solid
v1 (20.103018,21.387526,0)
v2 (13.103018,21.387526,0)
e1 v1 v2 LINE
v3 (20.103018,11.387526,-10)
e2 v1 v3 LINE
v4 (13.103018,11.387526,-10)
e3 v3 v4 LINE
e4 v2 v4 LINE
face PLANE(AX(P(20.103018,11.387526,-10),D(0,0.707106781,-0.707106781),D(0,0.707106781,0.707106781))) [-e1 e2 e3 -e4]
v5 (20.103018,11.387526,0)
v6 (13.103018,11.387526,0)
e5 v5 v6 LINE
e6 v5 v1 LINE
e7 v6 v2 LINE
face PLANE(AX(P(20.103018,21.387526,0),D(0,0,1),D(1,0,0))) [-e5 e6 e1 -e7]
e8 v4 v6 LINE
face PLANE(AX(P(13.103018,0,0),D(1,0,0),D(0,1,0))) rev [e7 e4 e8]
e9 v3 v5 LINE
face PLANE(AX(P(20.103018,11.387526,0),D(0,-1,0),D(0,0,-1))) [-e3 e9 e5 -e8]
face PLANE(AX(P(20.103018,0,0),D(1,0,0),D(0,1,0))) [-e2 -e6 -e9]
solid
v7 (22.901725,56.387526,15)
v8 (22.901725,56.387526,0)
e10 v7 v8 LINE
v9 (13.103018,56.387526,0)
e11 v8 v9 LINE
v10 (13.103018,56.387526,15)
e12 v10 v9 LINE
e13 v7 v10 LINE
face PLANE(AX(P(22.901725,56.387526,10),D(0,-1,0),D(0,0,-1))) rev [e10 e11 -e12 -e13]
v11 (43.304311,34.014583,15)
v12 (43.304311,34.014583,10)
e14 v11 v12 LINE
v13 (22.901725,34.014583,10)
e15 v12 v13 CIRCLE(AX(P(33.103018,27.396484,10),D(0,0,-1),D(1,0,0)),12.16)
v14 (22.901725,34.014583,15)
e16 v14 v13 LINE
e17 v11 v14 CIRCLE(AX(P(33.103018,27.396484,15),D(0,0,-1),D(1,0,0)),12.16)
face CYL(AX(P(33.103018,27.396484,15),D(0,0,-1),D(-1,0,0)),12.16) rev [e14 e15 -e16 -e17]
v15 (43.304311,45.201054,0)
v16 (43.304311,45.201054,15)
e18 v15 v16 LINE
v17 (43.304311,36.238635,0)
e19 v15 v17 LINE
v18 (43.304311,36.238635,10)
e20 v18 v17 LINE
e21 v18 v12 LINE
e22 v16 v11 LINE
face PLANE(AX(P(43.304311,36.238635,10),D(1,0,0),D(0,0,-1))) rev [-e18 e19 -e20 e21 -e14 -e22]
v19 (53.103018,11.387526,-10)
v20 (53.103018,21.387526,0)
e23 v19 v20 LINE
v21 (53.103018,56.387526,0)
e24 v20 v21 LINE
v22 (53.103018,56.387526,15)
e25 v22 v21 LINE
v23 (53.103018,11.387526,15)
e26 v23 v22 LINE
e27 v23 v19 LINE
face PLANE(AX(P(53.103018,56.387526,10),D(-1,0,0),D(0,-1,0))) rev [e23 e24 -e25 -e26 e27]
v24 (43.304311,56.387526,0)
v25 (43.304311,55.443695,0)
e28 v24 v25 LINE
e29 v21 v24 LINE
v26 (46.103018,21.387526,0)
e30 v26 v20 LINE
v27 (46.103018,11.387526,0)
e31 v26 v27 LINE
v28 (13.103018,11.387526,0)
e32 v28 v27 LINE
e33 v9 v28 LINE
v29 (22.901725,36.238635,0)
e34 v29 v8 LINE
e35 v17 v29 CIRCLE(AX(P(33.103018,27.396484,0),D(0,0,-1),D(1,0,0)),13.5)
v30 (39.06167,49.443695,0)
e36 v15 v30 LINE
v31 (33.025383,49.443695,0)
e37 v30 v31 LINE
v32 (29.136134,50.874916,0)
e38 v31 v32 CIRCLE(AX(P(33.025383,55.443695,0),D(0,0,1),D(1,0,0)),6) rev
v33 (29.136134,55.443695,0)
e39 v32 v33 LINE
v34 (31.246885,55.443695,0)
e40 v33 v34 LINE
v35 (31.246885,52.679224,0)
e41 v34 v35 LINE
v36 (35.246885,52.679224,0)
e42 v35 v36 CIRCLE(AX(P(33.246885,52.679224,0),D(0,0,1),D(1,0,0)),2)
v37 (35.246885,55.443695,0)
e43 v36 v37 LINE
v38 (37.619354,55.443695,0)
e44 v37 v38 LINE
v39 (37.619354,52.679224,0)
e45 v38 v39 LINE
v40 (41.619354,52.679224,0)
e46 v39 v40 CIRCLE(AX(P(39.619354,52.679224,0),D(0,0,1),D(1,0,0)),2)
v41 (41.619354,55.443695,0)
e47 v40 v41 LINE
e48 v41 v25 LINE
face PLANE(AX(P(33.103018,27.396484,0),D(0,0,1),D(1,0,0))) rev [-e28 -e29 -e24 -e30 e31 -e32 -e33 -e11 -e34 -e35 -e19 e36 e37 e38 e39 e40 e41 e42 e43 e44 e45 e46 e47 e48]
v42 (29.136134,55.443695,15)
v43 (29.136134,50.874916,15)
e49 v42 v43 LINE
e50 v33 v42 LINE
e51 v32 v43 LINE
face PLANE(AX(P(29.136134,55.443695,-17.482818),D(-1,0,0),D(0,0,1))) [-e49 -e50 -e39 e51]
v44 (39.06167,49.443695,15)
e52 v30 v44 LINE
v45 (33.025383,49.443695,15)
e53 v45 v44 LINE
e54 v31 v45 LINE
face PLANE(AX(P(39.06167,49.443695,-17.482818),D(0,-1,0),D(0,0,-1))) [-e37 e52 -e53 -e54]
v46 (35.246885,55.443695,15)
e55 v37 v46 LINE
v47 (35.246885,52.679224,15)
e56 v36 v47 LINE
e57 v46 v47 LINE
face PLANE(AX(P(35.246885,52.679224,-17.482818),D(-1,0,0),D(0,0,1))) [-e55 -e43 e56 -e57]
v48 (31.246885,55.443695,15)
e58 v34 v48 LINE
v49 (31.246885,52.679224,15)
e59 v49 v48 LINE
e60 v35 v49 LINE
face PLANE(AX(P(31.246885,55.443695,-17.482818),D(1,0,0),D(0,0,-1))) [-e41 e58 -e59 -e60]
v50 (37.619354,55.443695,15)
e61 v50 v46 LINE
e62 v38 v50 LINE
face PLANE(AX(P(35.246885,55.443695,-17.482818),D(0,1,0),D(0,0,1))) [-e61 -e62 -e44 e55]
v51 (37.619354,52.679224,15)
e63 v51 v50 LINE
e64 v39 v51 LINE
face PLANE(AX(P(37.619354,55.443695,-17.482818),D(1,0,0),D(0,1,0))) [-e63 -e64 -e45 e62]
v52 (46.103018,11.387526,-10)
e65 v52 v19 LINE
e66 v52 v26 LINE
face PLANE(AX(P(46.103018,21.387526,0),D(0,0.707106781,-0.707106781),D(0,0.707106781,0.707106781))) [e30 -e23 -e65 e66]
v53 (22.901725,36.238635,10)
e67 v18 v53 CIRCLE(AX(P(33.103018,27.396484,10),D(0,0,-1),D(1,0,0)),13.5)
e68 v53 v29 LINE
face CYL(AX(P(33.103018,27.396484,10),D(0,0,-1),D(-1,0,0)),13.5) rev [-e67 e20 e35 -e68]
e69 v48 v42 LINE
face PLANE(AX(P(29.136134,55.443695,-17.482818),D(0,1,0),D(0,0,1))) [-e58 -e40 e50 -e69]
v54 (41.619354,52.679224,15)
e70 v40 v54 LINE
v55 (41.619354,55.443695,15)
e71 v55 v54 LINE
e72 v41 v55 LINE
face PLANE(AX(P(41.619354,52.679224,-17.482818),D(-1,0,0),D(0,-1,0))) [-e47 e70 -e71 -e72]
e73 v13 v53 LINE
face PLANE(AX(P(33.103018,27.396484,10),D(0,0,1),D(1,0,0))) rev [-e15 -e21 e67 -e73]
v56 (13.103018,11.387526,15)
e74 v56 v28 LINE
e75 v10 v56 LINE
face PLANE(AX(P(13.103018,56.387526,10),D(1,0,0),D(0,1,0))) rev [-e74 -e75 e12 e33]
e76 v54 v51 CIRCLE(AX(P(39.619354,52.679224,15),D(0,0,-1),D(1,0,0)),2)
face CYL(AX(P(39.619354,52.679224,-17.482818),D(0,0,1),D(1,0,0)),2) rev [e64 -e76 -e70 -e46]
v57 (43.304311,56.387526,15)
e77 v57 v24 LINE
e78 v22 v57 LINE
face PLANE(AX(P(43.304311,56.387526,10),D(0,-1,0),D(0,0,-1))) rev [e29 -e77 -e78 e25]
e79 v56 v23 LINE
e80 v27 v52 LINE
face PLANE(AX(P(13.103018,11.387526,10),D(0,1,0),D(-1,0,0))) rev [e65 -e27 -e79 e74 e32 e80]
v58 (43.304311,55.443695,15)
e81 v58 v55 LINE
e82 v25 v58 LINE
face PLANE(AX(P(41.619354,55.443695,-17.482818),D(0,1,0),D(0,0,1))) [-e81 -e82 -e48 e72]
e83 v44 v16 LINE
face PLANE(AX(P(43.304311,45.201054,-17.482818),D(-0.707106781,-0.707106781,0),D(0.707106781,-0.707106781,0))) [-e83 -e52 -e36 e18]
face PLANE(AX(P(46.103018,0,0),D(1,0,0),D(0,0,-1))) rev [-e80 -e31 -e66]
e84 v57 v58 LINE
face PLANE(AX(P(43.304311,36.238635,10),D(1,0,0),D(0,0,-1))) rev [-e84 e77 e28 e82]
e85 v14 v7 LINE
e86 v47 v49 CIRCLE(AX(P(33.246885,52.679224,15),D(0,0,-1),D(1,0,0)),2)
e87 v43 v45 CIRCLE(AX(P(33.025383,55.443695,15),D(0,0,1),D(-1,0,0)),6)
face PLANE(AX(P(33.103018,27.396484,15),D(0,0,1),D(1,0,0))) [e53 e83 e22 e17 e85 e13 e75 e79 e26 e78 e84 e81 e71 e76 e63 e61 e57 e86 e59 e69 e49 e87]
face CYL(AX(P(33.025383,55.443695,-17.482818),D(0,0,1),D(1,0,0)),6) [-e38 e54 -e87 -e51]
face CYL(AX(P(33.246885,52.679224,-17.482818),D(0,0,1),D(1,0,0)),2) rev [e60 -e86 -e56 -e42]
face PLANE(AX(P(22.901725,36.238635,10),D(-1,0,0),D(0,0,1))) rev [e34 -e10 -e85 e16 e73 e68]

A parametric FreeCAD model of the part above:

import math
import FreeCAD as App
import Part
import Sketcher
from FreeCAD import Vector
Q = App.Units.Quantity


def add_polygon(sketch, points):
    """Adds a closed chain of lines whose ends are joined by coincident constraints."""
    first, n = sketch.GeometryCount, len(points)
    for a, b in zip(points, points[1:] + points[:1]):
        sketch.addGeometry(Part.LineSegment(App.Vector(*a, 0), App.Vector(*b, 0)), False)
    for i in range(n):
        sketch.addConstraint(Sketcher.Constraint("Coincident", first + i, 2, first + (i + 1) % n, 1))

doc = App.newDocument("Part")
body = doc.addObject("PartDesign::Body", "Body")

sketch1 = doc.addObject("Sketcher::SketchObject", "Sketch")
body.addObject(sketch1)
sketch1.AttachmentSupport = (doc.XY_Plane, [""])
sketch1.MapMode = "FlatFace"
sketch1.addGeometry([
    Part.LineSegment(Vector(13, 56, 0), Vector(13, 11, 0)),
    Part.LineSegment(Vector(13, 11, 0), Vector(53, 11, 0)),
    Part.LineSegment(Vector(53, 11, 0), Vector(53, 56, 0)),
    Part.LineSegment(Vector(53, 56, 0), Vector(43, 56, 0)),
    Part.LineSegment(Vector(43, 56, 0), Vector(43, 36, 0)),
    Part.ArcOfCircle(Part.Circle(Vector(33, 27, 0), Vector(0, 0, 1), 14), math.radians(139), math.radians(401)),
    Part.LineSegment(Vector(23, 36, 0), Vector(23, 56, 0)),
    Part.LineSegment(Vector(23, 56, 0), Vector(13, 56, 0)),
], False)
sketch1.addConstraint([
    Sketcher.Constraint("Coincident", 0, 2, 1, 1),
    Sketcher.Constraint("Coincident", 1, 2, 2, 1),
    Sketcher.Constraint("Coincident", 2, 2, 3, 1),
    Sketcher.Constraint("Coincident", 3, 2, 4, 1),
    Sketcher.Constraint("Coincident", 4, 2, 5, 2),
    Sketcher.Constraint("Coincident", 5, 1, 6, 1),
    Sketcher.Constraint("Coincident", 6, 2, 7, 1),
    Sketcher.Constraint("Coincident", 7, 2, 0, 1),
    Sketcher.Constraint("Vertical", 0),
    Sketcher.Constraint("Horizontal", 1),
    Sketcher.Constraint("Vertical", 2),
    Sketcher.Constraint("Horizontal", 3),
    Sketcher.Constraint("Vertical", 4),
    Sketcher.Constraint("Vertical", 6),
    Sketcher.Constraint("Horizontal", 7),
    Sketcher.Constraint("Horizontal", 4, 2, 5, 1),
    Sketcher.Constraint("Horizontal", 3, 2, 6, 2),
    Sketcher.Constraint("Equal", 3, 7),
    Sketcher.Constraint("Radius", 5, 13.5),
    Sketcher.Constraint("DistanceX", 1, 1, 1, 2, 40.0),
    Sketcher.Constraint("DistanceY", 0, 2, 0, 1, 45.0),
    Sketcher.Constraint("DistanceY", 4, 2, 4, 1, 20.148891),
    Sketcher.Constraint("DistanceX", 3, 2, 3, 1, 9.798707),
    Sketcher.Constraint("DistanceX", -1, 1, 3, 2, 43.304311),
    Sketcher.Constraint("DistanceY", -1, 1, 5, 3, 27.396484),
])
pad1 = doc.addObject("PartDesign::Pad", "Pad")
body.addObject(pad1)
pad1.Profile = sketch1
pad1.Length = 10

sketch2 = doc.addObject("Sketcher::SketchObject", "Sketch001")
body.addObject(sketch2)
sketch2.AttachmentSupport = (doc.XY_Plane, [""])
sketch2.MapMode = "FlatFace"
sketch2.AttachmentOffset = App.Placement(Vector(0, 0, 10), App.Rotation())
sketch2.addGeometry([
    Part.LineSegment(Vector(23, 56, 0), Vector(13, 56, 0)),
    Part.LineSegment(Vector(13, 56, 0), Vector(13, 11, 0)),
    Part.LineSegment(Vector(13, 11, 0), Vector(53, 11, 0)),
    Part.LineSegment(Vector(53, 11, 0), Vector(53, 56, 0)),
    Part.LineSegment(Vector(53, 56, 0), Vector(43, 56, 0)),
    Part.LineSegment(Vector(43, 56, 0), Vector(43, 34, 0)),
    Part.ArcOfCircle(Part.Circle(Vector(33, 27, 0), Vector(0, 0, 1), 12), math.radians(147), math.radians(393)),
    Part.LineSegment(Vector(23, 34, 0), Vector(23, 56, 0)),
], False)
sketch2.addConstraint([
    Sketcher.Constraint("Coincident", 0, 2, 1, 1),
    Sketcher.Constraint("Coincident", 1, 2, 2, 1),
    Sketcher.Constraint("Coincident", 2, 2, 3, 1),
    Sketcher.Constraint("Coincident", 3, 2, 4, 1),
    Sketcher.Constraint("Coincident", 4, 2, 5, 1),
    Sketcher.Constraint("Coincident", 5, 2, 6, 2),
    Sketcher.Constraint("Coincident", 6, 1, 7, 1),
    Sketcher.Constraint("Coincident", 7, 2, 0, 1),
    Sketcher.Constraint("Horizontal", 0),
    Sketcher.Constraint("Vertical", 1),
    Sketcher.Constraint("Horizontal", 2),
    Sketcher.Constraint("Vertical", 3),
    Sketcher.Constraint("Horizontal", 4),
    Sketcher.Constraint("Vertical", 5),
    Sketcher.Constraint("Vertical", 7),
    Sketcher.Constraint("Horizontal", 0, 2, 3, 2),
    Sketcher.Constraint("Horizontal", 5, 2, 6, 1),
    Sketcher.Constraint("Equal", 0, 4),
    Sketcher.Constraint("DistanceX", 2, 1, 2, 2, 40.0),
    Sketcher.Constraint("DistanceY", 1, 2, 1, 1, 45.0),
    Sketcher.Constraint("Radius", 6, 12.16),
    Sketcher.Constraint("DistanceY", 6, 3, 5, 2, 6.618098),
    Sketcher.Constraint("DistanceY", 5, 2, 5, 1, 22.372943),
    Sketcher.Constraint("DistanceX", -1, 1, 4, 2, 43.304311),
    Sketcher.Constraint("DistanceY", -1, 1, 6, 3, 27.396484),
])
pad2 = doc.addObject("PartDesign::Pad", "Pad001")
body.addObject(pad2)
pad2.Profile = sketch2
pad2.Length = 5

sketch3 = doc.addObject("Sketcher::SketchObject", "Sketch002")
body.addObject(sketch3)
sketch3.AttachmentSupport = (doc.YZ_Plane, [""])
sketch3.MapMode = "FlatFace"
sketch3.AttachmentOffset = App.Placement(Vector(0, 0, 53.103018), App.Rotation())
add_polygon(sketch3, [(11, -10), (21, 0), (11, 0)])
sketch3.addConstraint([
    Sketcher.Constraint("Horizontal", 1),
    Sketcher.Constraint("Vertical", 2),
    Sketcher.Constraint("PointOnObject", 0, 2, -1),
    Sketcher.Constraint("Equal", 1, 2),
    Sketcher.Constraint("DistanceX", 1, 2, 1, 1, 10.0),
    Sketcher.Constraint("DistanceX", -1, 1, 0, 2, 21.387526),
])
pad3 = doc.addObject("PartDesign::Pad", "Pad002")
body.addObject(pad3)
pad3.Profile = sketch3
pad3.Length = 7
pad3.Reversed = True

sketch4 = doc.addObject("Sketcher::SketchObject", "Sketch003")
body.addObject(sketch4)
sketch4.AttachmentSupport = (doc.XY_Plane, [""])
sketch4.MapMode = "FlatFace"
sketch4.AttachmentOffset = App.Placement(Vector(0, 0, 15), App.Rotation())
sketch4.addGeometry([
    Part.LineSegment(Vector(39.1, 49.4, 0), Vector(43.3, 45.2, 0)),
    Part.LineSegment(Vector(43.3, 45.2, 0), Vector(43.3, 55.4, 0)),
    Part.LineSegment(Vector(43.3, 55.4, 0), Vector(41.6, 55.4, 0)),
    Part.LineSegment(Vector(41.6, 55.4, 0), Vector(41.6, 52.7, 0)),
    Part.ArcOfCircle(Part.Circle(Vector(39.6, 52.7, 0), Vector(0, 0, 1), 2), math.radians(180), math.radians(360)),
    Part.LineSegment(Vector(37.6, 52.7, 0), Vector(37.6, 55.4, 0)),
    Part.LineSegment(Vector(37.6, 55.4, 0), Vector(35.2, 55.4, 0)),
    Part.LineSegment(Vector(35.2, 55.4, 0), Vector(35.2, 52.7, 0)),
    Part.ArcOfCircle(Part.Circle(Vector(33.2, 52.7, 0), Vector(0, 0, 1), 2), math.radians(180), math.radians(360)),
    Part.LineSegment(Vector(31.2, 52.7, 0), Vector(31.2, 55.4, 0)),
    Part.LineSegment(Vector(31.2, 55.4, 0), Vector(29.1, 55.4, 0)),
    Part.LineSegment(Vector(29.1, 55.4, 0), Vector(29.1, 50.9, 0)),
    Part.ArcOfCircle(Part.Circle(Vector(33, 55.4, 0), Vector(0, 0, 1), 6), math.radians(-130), math.radians(-90)),
    Part.LineSegment(Vector(33, 49.4, 0), Vector(39.1, 49.4, 0)),
], False)
sketch4.addConstraint([
    Sketcher.Constraint("Coincident", 0, 2, 1, 1),
    Sketcher.Constraint("Coincident", 1, 2, 2, 1),
    Sketcher.Constraint("Coincident", 2, 2, 3, 1),
    Sketcher.Constraint("Tangent", 3, 2, 4, 2),
    Sketcher.Constraint("Tangent", 4, 1, 5, 1),
    Sketcher.Constraint("Coincident", 5, 2, 6, 1),
    Sketcher.Constraint("Coincident", 6, 2, 7, 1),
    Sketcher.Constraint("Tangent", 7, 2, 8, 2),
    Sketcher.Constraint("Tangent", 8, 1, 9, 1),
    Sketcher.Constraint("Coincident", 9, 2, 10, 1),
    Sketcher.Constraint("Coincident", 10, 2, 11, 1),
    Sketcher.Constraint("Coincident", 11, 2, 12, 1),
    Sketcher.Constraint("Tangent", 12, 2, 13, 1),
    Sketcher.Constraint("Coincident", 13, 2, 0, 1),
    Sketcher.Constraint("Vertical", 1),
    Sketcher.Constraint("Horizontal", 2),
    Sketcher.Constraint("Vertical", 3),
    Sketcher.Constraint("Vertical", 5),
    Sketcher.Constraint("Horizontal", 6),
    Sketcher.Constraint("Vertical", 7),
    Sketcher.Constraint("Vertical", 9),
    Sketcher.Constraint("Horizontal", 10),
    Sketcher.Constraint("Vertical", 11),
    Sketcher.Constraint("Horizontal", 13),
    Sketcher.Constraint("Equal", 4, 8),
    Sketcher.Constraint("Horizontal", 4, 3, 8, 3),
    Sketcher.Constraint("Horizontal", 12, 3, 1, 2),
    Sketcher.Constraint("Horizontal", 2, 2, 5, 2),
    Sketcher.Constraint("Horizontal", 6, 2, 9, 2),
    Sketcher.Constraint("Radius", 4, 2.0),
    Sketcher.Constraint("Radius", 12, 6.0),
    Sketcher.Constraint("Angle", 0, Q("-45 deg")),
    Sketcher.Constraint("Distance", 0, 6.0),
    Sketcher.Constraint("DistanceX", 6, 2, 6, 1, 2.372469),
    Sketcher.Constraint("DistanceX", 10, 2, 10, 1, 2.110751),
    Sketcher.Constraint("DistanceY", 3, 2, 3, 1, 2.764471),
    Sketcher.Constraint("DistanceY", 11, 2, 11, 1, 4.568779),
    Sketcher.Constraint("DistanceX", 2, 2, 2, 1, 1.684956),
    Sketcher.Constraint("DistanceX", -1, 1, 0, 2, 43.304311),
    Sketcher.Constraint("DistanceY", -1, 1, 4, 3, 52.679224),
])
pad4 = doc.addObject("PartDesign::Pad", "Pad003")
body.addObject(pad4)
pad4.Profile = sketch4
pad4.Length = 15
pad4.Reversed = True
body2 = doc.addObject("PartDesign::Body", "Body001")

sketch5 = doc.addObject("Sketcher::SketchObject", "Sketch004")
body2.addObject(sketch5)
sketch5.AttachmentSupport = (doc.getObject("YZ_Plane001"), [""])
sketch5.MapMode = "FlatFace"
sketch5.AttachmentOffset = App.Placement(Vector(0, 0, 13.103018), App.Rotation())
add_polygon(sketch5, [(11, -10), (11, 0), (21, 0)])
sketch5.addConstraint([
    Sketcher.Constraint("Vertical", 0),
    Sketcher.Constraint("Horizontal", 1),
    Sketcher.Constraint("PointOnObject", 0, 2, -1),
    Sketcher.Constraint("Equal", 1, 0),
    Sketcher.Constraint("DistanceX", 1, 1, 1, 2, 10.0),
    Sketcher.Constraint("DistanceX", -1, 1, 0, 2, 11.387526),
])
pad5 = doc.addObject("PartDesign::Pad", "Pad004")
body2.addObject(pad5)
pad5.Profile = sketch5
pad5.Length = 7

doc.recompute()
